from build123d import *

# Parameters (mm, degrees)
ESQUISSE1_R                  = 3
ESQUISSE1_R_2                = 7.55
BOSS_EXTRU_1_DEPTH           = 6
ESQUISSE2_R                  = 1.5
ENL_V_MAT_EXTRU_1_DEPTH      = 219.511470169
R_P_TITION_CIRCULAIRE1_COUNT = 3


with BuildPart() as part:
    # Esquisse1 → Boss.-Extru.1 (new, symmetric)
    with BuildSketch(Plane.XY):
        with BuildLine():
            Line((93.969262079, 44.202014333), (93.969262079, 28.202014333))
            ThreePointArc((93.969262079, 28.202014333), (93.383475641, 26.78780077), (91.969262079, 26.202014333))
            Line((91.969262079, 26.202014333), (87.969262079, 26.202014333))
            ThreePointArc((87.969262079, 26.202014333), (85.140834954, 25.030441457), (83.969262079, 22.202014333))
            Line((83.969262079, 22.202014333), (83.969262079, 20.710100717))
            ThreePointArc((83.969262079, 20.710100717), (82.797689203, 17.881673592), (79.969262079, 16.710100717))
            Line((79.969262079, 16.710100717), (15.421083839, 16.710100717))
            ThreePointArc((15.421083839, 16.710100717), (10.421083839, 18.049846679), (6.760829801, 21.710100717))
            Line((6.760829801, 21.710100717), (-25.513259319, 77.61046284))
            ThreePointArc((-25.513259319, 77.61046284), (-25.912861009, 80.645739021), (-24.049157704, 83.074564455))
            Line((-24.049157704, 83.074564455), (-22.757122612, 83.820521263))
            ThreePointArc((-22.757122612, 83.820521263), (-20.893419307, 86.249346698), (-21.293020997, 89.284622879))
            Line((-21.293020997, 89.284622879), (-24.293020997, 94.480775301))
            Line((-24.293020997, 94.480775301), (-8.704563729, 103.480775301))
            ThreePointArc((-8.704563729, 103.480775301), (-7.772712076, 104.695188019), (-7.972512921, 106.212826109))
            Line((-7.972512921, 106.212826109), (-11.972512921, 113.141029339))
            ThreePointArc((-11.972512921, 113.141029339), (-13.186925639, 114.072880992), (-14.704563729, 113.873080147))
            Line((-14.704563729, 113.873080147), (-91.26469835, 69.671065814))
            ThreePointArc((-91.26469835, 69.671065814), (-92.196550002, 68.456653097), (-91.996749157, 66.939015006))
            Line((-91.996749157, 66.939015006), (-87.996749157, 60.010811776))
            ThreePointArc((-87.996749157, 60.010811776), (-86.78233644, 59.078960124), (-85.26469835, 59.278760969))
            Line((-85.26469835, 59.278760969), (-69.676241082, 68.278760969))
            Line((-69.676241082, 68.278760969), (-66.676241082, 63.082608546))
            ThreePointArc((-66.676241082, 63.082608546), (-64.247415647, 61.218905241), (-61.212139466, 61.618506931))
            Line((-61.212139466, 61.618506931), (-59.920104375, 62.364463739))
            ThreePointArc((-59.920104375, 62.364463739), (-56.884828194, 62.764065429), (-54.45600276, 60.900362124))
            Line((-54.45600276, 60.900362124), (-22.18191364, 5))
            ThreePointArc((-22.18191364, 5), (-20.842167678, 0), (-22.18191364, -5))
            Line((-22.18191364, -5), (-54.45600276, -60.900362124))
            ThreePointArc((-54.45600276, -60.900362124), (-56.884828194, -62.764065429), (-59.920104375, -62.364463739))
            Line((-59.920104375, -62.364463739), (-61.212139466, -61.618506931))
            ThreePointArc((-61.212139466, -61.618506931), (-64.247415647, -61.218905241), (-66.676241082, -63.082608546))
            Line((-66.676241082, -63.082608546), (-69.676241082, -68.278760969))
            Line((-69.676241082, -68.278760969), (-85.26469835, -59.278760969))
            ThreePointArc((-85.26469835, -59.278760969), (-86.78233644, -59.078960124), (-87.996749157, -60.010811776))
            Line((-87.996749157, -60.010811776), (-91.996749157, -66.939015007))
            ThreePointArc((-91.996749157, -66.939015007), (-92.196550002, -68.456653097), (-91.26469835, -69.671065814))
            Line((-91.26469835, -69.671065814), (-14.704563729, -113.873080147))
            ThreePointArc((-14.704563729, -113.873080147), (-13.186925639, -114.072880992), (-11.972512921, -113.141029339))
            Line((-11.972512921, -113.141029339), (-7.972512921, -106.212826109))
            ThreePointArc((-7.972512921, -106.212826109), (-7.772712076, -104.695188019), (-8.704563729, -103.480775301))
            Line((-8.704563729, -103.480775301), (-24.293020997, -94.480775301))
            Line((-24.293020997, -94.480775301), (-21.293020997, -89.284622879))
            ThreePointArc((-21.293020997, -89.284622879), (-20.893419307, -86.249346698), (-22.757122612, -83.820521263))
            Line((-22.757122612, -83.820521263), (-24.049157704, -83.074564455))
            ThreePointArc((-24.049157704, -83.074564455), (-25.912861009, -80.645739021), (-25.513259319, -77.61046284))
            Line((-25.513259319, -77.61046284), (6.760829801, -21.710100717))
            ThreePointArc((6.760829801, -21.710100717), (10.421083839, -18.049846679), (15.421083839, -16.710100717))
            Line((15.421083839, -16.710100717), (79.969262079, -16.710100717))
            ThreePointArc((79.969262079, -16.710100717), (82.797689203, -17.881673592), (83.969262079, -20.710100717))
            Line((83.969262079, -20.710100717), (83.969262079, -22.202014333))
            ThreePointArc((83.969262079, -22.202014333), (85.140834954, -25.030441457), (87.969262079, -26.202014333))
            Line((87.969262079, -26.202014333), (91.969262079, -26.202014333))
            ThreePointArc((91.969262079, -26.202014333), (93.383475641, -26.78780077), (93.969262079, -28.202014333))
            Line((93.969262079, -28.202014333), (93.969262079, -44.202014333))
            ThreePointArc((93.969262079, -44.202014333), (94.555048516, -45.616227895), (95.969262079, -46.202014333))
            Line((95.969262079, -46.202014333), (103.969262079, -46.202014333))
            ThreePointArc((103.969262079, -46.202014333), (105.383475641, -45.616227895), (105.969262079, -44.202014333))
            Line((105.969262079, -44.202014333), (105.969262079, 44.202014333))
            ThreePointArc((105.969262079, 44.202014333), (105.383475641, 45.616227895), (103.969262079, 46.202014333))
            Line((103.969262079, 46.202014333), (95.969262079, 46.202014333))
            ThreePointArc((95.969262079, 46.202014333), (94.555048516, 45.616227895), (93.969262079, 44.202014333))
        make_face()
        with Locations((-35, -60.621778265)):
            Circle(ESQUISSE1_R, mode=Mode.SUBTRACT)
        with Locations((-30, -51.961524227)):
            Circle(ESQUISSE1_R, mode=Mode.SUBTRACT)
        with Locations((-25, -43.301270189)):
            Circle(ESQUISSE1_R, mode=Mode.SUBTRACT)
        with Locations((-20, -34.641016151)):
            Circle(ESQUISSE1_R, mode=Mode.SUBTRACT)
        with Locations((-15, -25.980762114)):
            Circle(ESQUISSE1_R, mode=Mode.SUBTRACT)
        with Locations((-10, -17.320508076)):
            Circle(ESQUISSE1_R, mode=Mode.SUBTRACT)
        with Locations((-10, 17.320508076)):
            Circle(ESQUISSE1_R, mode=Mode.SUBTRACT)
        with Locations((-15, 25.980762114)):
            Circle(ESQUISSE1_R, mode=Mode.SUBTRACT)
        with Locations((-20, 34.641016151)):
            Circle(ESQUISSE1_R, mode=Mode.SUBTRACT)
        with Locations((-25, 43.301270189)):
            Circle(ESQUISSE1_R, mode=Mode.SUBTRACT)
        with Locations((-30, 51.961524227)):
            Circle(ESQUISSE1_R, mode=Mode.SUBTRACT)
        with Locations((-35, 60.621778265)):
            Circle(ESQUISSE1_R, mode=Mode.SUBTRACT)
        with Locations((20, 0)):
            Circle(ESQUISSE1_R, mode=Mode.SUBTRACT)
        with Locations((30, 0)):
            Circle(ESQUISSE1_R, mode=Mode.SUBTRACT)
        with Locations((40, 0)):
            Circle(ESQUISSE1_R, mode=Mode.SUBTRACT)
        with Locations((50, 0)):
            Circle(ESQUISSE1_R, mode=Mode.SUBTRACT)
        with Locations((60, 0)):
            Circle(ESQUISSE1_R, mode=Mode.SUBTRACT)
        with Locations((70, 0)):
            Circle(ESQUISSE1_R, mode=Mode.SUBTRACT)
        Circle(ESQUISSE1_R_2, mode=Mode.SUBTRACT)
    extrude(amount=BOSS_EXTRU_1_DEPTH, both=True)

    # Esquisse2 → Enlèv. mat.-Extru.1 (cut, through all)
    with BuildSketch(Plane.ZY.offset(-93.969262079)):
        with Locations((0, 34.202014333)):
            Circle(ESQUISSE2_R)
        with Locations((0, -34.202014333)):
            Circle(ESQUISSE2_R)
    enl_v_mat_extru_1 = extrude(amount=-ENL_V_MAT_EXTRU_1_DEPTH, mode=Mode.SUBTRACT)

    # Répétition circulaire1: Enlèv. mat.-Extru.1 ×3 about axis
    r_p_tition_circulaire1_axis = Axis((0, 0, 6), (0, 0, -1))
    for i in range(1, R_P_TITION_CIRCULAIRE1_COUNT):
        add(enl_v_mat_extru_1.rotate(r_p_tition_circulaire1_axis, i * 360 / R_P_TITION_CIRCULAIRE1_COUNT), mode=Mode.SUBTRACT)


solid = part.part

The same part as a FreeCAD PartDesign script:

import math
import FreeCAD as App
import Part
import Sketcher

V = App.Vector
Q = App.Units.Quantity

doc = App.newDocument("Part")
body = doc.addObject("PartDesign::Body", "Body")

# Sketch on XY plane
sketch1 = doc.addObject("Sketcher::SketchObject", "Sketch")
body.addObject(sketch1)
sketch1.AttachmentSupport = (doc.XY_Plane, [""])
sketch1.MapMode = "FlatFace"
sketch1.addGeometry(Part.LineSegment(V(93.969262, 44.202014, 0), V(93.969262, 28.202014, 0)), False)
sketch1.addGeometry(Part.ArcOfCircle(Part.Circle(V(91.969262, 28.202014, 0), V(0, 0, 1), 2), math.radians(-90), math.radians(0)), False)
sketch1.addGeometry(Part.LineSegment(V(91.969262, 26.202014, 0), V(87.969262, 26.202014, 0)), False)
sketch1.addGeometry(Part.ArcOfCircle(Part.Circle(V(87.969262, 22.202014, 0), V(0, 0, 1), 4), math.radians(90), math.radians(180)), False)
sketch1.addGeometry(Part.LineSegment(V(83.969262, 22.202014, 0), V(83.969262, 20.710101, 0)), False)
sketch1.addGeometry(Part.ArcOfCircle(Part.Circle(V(79.969262, 20.710101, 0), V(0, 0, 1), 4), math.radians(-90), math.radians(0)), False)
sketch1.addGeometry(Part.LineSegment(V(79.969262, 16.710101, 0), V(15.421084, 16.710101, 0)), False)
sketch1.addGeometry(Part.ArcOfCircle(Part.Circle(V(15.421084, 26.710101, 0), V(0, 0, 1), 10), math.radians(-150), math.radians(-90)), False)
sketch1.addGeometry(Part.LineSegment(V(6.76083, 21.710101, 0), V(-25.513259, 77.610463, 0)), False)
sketch1.addGeometry(Part.ArcOfCircle(Part.Circle(V(-22.049158, 79.610463, 0), V(0, 0, 1), 4), math.radians(120), math.radians(210)), False)
sketch1.addGeometry(Part.LineSegment(V(-24.049158, 83.074564, 0), V(-22.757123, 83.820521, 0)), False)
sketch1.addGeometry(Part.ArcOfCircle(Part.Circle(V(-24.757123, 87.284623, 0), V(0, 0, 1), 4), math.radians(-60), math.radians(30)), False)
sketch1.addGeometry(Part.LineSegment(V(-21.293021, 89.284623, 0), V(-24.293021, 94.480775, 0)), False)
sketch1.addGeometry(Part.LineSegment(V(-24.293021, 94.480775, 0), V(-8.704564, 103.480775, 0)), False)
sketch1.addGeometry(Part.ArcOfCircle(Part.Circle(V(-9.704564, 105.212826, 0), V(0, 0, 1), 2), math.radians(-60), math.radians(30)), False)
sketch1.addGeometry(Part.LineSegment(V(-7.972513, 106.212826, 0), V(-11.972513, 113.141029, 0)), False)
sketch1.addGeometry(Part.ArcOfCircle(Part.Circle(V(-13.704564, 112.141029, 0), V(0, 0, 1), 2), math.radians(30), math.radians(120)), False)
sketch1.addGeometry(Part.LineSegment(V(-14.704564, 113.87308, 0), V(-91.264698, 69.671066, 0)), False)
sketch1.addGeometry(Part.ArcOfCircle(Part.Circle(V(-90.264698, 67.939015, 0), V(0, 0, 1), 2), math.radians(120), math.radians(210)), False)
sketch1.addGeometry(Part.LineSegment(V(-91.996749, 66.939015, 0), V(-87.996749, 60.010812, 0)), False)
sketch1.addGeometry(Part.ArcOfCircle(Part.Circle(V(-86.264698, 61.010812, 0), V(0, 0, 1), 2), math.radians(-150), math.radians(-60)), False)
sketch1.addGeometry(Part.LineSegment(V(-85.264698, 59.278761, 0), V(-69.676241, 68.278761, 0)), False)
sketch1.addGeometry(Part.LineSegment(V(-69.676241, 68.278761, 0), V(-66.676241, 63.082609, 0)), False)
sketch1.addGeometry(Part.ArcOfCircle(Part.Circle(V(-63.212139, 65.082609, 0), V(0, 0, 1), 4), math.radians(-150), math.radians(-60)), False)
sketch1.addGeometry(Part.LineSegment(V(-61.212139, 61.618507, 0), V(-59.920104, 62.364464, 0)), False)
sketch1.addGeometry(Part.ArcOfCircle(Part.Circle(V(-57.920104, 58.900362, 0), V(0, 0, 1), 4), math.radians(30), math.radians(120)), False)
sketch1.addGeometry(Part.LineSegment(V(-54.456003, 60.900362, 0), V(-22.181914, 5, 0)), False)
sketch1.addGeometry(Part.ArcOfCircle(Part.Circle(V(-30.842168, 0, 0), V(0, 0, 1), 10), math.radians(-30), math.radians(30)), False)
sketch1.addGeometry(Part.LineSegment(V(-22.181914, -5, 0), V(-54.456003, -60.900362, 0)), False)
sketch1.addGeometry(Part.ArcOfCircle(Part.Circle(V(-57.920104, -58.900362, 0), V(0, 0, 1), 4), math.radians(-120), math.radians(-30)), False)
sketch1.addGeometry(Part.LineSegment(V(-59.920104, -62.364464, 0), V(-61.212139, -61.618507, 0)), False)
sketch1.addGeometry(Part.ArcOfCircle(Part.Circle(V(-63.212139, -65.082609, 0), V(0, 0, 1), 4), math.radians(60), math.radians(150)), False)
sketch1.addGeometry(Part.LineSegment(V(-66.676241, -63.082609, 0), V(-69.676241, -68.278761, 0)), False)
sketch1.addGeometry(Part.LineSegment(V(-69.676241, -68.278761, 0), V(-85.264698, -59.278761, 0)), False)
sketch1.addGeometry(Part.ArcOfCircle(Part.Circle(V(-86.264698, -61.010812, 0), V(0, 0, 1), 2), math.radians(60), math.radians(150)), False)
sketch1.addGeometry(Part.LineSegment(V(-87.996749, -60.010812, 0), V(-91.996749, -66.939015, 0)), False)
sketch1.addGeometry(Part.ArcOfCircle(Part.Circle(V(-90.264698, -67.939015, 0), V(0, 0, 1), 2), math.radians(150), math.radians(240)), False)
sketch1.addGeometry(Part.LineSegment(V(-91.264698, -69.671066, 0), V(-14.704564, -113.87308, 0)), False)
sketch1.addGeometry(Part.ArcOfCircle(Part.Circle(V(-13.704564, -112.141029, 0), V(0, 0, 1), 2), math.radians(-120), math.radians(-30)), False)
sketch1.addGeometry(Part.LineSegment(V(-11.972513, -113.141029, 0), V(-7.972513, -106.212826, 0)), False)
sketch1.addGeometry(Part.ArcOfCircle(Part.Circle(V(-9.704564, -105.212826, 0), V(0, 0, 1), 2), math.radians(-30), math.radians(60)), False)
sketch1.addGeometry(Part.LineSegment(V(-8.704564, -103.480775, 0), V(-24.293021, -94.480775, 0)), False)
sketch1.addGeometry(Part.LineSegment(V(-24.293021, -94.480775, 0), V(-21.293021, -89.284623, 0)), False)
sketch1.addGeometry(Part.ArcOfCircle(Part.Circle(V(-24.757123, -87.284623, 0), V(0, 0, 1), 4), math.radians(-30), math.radians(60)), False)
sketch1.addGeometry(Part.LineSegment(V(-22.757123, -83.820521, 0), V(-24.049158, -83.074564, 0)), False)
sketch1.addGeometry(Part.ArcOfCircle(Part.Circle(V(-22.049158, -79.610463, 0), V(0, 0, 1), 4), math.radians(150), math.radians(240)), False)
sketch1.addGeometry(Part.LineSegment(V(-25.513259, -77.610463, 0), V(6.76083, -21.710101, 0)), False)
sketch1.addGeometry(Part.ArcOfCircle(Part.Circle(V(15.421084, -26.710101, 0), V(0, 0, 1), 10), math.radians(90), math.radians(150)), False)
sketch1.addGeometry(Part.LineSegment(V(15.421084, -16.710101, 0), V(79.969262, -16.710101, 0)), False)
sketch1.addGeometry(Part.ArcOfCircle(Part.Circle(V(79.969262, -20.710101, 0), V(0, 0, 1), 4), math.radians(0), math.radians(90)), False)
sketch1.addGeometry(Part.LineSegment(V(83.969262, -20.710101, 0), V(83.969262, -22.202014, 0)), False)
sketch1.addGeometry(Part.ArcOfCircle(Part.Circle(V(87.969262, -22.202014, 0), V(0, 0, 1), 4), math.radians(-180), math.radians(-90)), False)
sketch1.addGeometry(Part.LineSegment(V(87.969262, -26.202014, 0), V(91.969262, -26.202014, 0)), False)
sketch1.addGeometry(Part.ArcOfCircle(Part.Circle(V(91.969262, -28.202014, 0), V(0, 0, 1), 2), math.radians(0), math.radians(90)), False)
sketch1.addGeometry(Part.LineSegment(V(93.969262, -28.202014, 0), V(93.969262, -44.202014, 0)), False)
sketch1.addGeometry(Part.ArcOfCircle(Part.Circle(V(95.969262, -44.202014, 0), V(0, 0, 1), 2), math.radians(180), math.radians(270)), False)
sketch1.addGeometry(Part.LineSegment(V(95.969262, -46.202014, 0), V(103.969262, -46.202014, 0)), False)
sketch1.addGeometry(Part.ArcOfCircle(Part.Circle(V(103.969262, -44.202014, 0), V(0, 0, 1), 2), math.radians(-90), math.radians(0)), False)
sketch1.addGeometry(Part.LineSegment(V(105.969262, -44.202014, 0), V(105.969262, 44.202014, 0)), False)
sketch1.addGeometry(Part.ArcOfCircle(Part.Circle(V(103.969262, 44.202014, 0), V(0, 0, 1), 2), math.radians(0), math.radians(90)), False)
sketch1.addGeometry(Part.LineSegment(V(103.969262, 46.202014, 0), V(95.969262, 46.202014, 0)), False)
sketch1.addGeometry(Part.ArcOfCircle(Part.Circle(V(95.969262, 44.202014, 0), V(0, 0, 1), 2), math.radians(90), math.radians(180)), False)
sketch1.addGeometry(Part.Circle(V(-35, -60.621778, 0), V(0, 0, 1), 3), False)
sketch1.addGeometry(Part.Circle(V(-30, -51.961524, 0), V(0, 0, 1), 3), False)
sketch1.addGeometry(Part.Circle(V(-25, -43.30127, 0), V(0, 0, 1), 3), False)
sketch1.addGeometry(Part.Circle(V(-20, -34.641016, 0), V(0, 0, 1), 3), False)
sketch1.addGeometry(Part.Circle(V(-15, -25.980762, 0), V(0, 0, 1), 3), False)
sketch1.addGeometry(Part.Circle(V(-10, -17.320508, 0), V(0, 0, 1), 3), False)
sketch1.addGeometry(Part.Circle(V(0, 0, 0), V(0, 0, 1), 7.55), False)
sketch1.addGeometry(Part.Circle(V(20, 0, 0), V(0, 0, 1), 3), False)
sketch1.addGeometry(Part.Circle(V(30, 0, 0), V(0, 0, 1), 3), False)
sketch1.addGeometry(Part.Circle(V(40, 0, 0), V(0, 0, 1), 3), False)
sketch1.addGeometry(Part.Circle(V(50, 0, 0), V(0, 0, 1), 3), False)
sketch1.addGeometry(Part.Circle(V(60, 0, 0), V(0, 0, 1), 3), False)
sketch1.addGeometry(Part.Circle(V(70, 0, 0), V(0, 0, 1), 3), False)
sketch1.addGeometry(Part.Circle(V(-15, 25.980762, 0), V(0, 0, 1), 3), False)
sketch1.addGeometry(Part.Circle(V(-10, 17.320508, 0), V(0, 0, 1), 3), False)
sketch1.addGeometry(Part.Circle(V(-25, 43.30127, 0), V(0, 0, 1), 3), False)
sketch1.addGeometry(Part.Circle(V(-20, 34.641016, 0), V(0, 0, 1), 3), False)
sketch1.addGeometry(Part.Circle(V(-30, 51.961524, 0), V(0, 0, 1), 3), False)
sketch1.addGeometry(Part.Circle(V(-35, 60.621778, 0), V(0, 0, 1), 3), False)
sketch1.addConstraint(Sketcher.Constraint("Tangent", 0, 2, 1, 2))
sketch1.addConstraint(Sketcher.Constraint("Tangent", 1, 1, 2, 1))
sketch1.addConstraint(Sketcher.Constraint("Tangent", 2, 2, 3, 1))
sketch1.addConstraint(Sketcher.Constraint("Tangent", 3, 2, 4, 1))
sketch1.addConstraint(Sketcher.Constraint("Tangent", 4, 2, 5, 2))
sketch1.addConstraint(Sketcher.Constraint("Tangent", 5, 1, 6, 1))
sketch1.addConstraint(Sketcher.Constraint("Tangent", 6, 2, 7, 2))
sketch1.addConstraint(Sketcher.Constraint("Tangent", 7, 1, 8, 1))
sketch1.addConstraint(Sketcher.Constraint("Tangent", 8, 2, 9, 2))
sketch1.addConstraint(Sketcher.Constraint("Tangent", 9, 1, 10, 1))
sketch1.addConstraint(Sketcher.Constraint("Tangent", 10, 2, 11, 1))
sketch1.addConstraint(Sketcher.Constraint("Tangent", 11, 2, 12, 1))
sketch1.addConstraint(Sketcher.Constraint("Coincident", 12, 2, 13, 1))
sketch1.addConstraint(Sketcher.Constraint("Tangent", 13, 2, 14, 1))
sketch1.addConstraint(Sketcher.Constraint("Tangent", 14, 2, 15, 1))
sketch1.addConstraint(Sketcher.Constraint("Tangent", 15, 2, 16, 1))
sketch1.addConstraint(Sketcher.Constraint("Tangent", 16, 2, 17, 1))
sketch1.addConstraint(Sketcher.Constraint("Tangent", 17, 2, 18, 1))
sketch1.addConstraint(Sketcher.Constraint("Tangent", 18, 2, 19, 1))
sketch1.addConstraint(Sketcher.Constraint("Tangent", 19, 2, 20, 1))
sketch1.addConstraint(Sketcher.Constraint("Tangent", 20, 2, 21, 1))
sketch1.addConstraint(Sketcher.Constraint("Coincident", 21, 2, 22, 1))
sketch1.addConstraint(Sketcher.Constraint("Tangent", 22, 2, 23, 1))
sketch1.addConstraint(Sketcher.Constraint("Tangent", 23, 2, 24, 1))
sketch1.addConstraint(Sketcher.Constraint("Tangent", 24, 2, 25, 2))
sketch1.addConstraint(Sketcher.Constraint("Tangent", 25, 1, 26, 1))
sketch1.addConstraint(Sketcher.Constraint("Tangent", 26, 2, 27, 2))
sketch1.addConstraint(Sketcher.Constraint("Tangent", 27, 1, 28, 1))
sketch1.addConstraint(Sketcher.Constraint("Tangent", 28, 2, 29, 2))
sketch1.addConstraint(Sketcher.Constraint("Tangent", 29, 1, 30, 1))
sketch1.addConstraint(Sketcher.Constraint("Tangent", 30, 2, 31, 1))
sketch1.addConstraint(Sketcher.Constraint("Tangent", 31, 2, 32, 1))
sketch1.addConstraint(Sketcher.Constraint("Coincident", 32, 2, 33, 1))
sketch1.addConstraint(Sketcher.Constraint("Tangent", 33, 2, 34, 1))
sketch1.addConstraint(Sketcher.Constraint("Tangent", 34, 2, 35, 1))
sketch1.addConstraint(Sketcher.Constraint("Tangent", 35, 2, 36, 1))
sketch1.addConstraint(Sketcher.Constraint("Tangent", 36, 2, 37, 1))
sketch1.addConstraint(Sketcher.Constraint("Tangent", 37, 2, 38, 1))
sketch1.addConstraint(Sketcher.Constraint("Tangent", 38, 2, 39, 1))
sketch1.addConstraint(Sketcher.Constraint("Tangent", 39, 2, 40, 1))
sketch1.addConstraint(Sketcher.Constraint("Tangent", 40, 2, 41, 1))
sketch1.addConstraint(Sketcher.Constraint("Coincident", 41, 2, 42, 1))
sketch1.addConstraint(Sketcher.Constraint("Tangent", 42, 2, 43, 1))
sketch1.addConstraint(Sketcher.Constraint("Tangent", 43, 2, 44, 1))
sketch1.addConstraint(Sketcher.Constraint("Tangent", 44, 2, 45, 2))
sketch1.addConstraint(Sketcher.Constraint("Tangent", 45, 1, 46, 1))
sketch1.addConstraint(Sketcher.Constraint("Tangent", 46, 2, 47, 2))
sketch1.addConstraint(Sketcher.Constraint("Tangent", 47, 1, 48, 1))
sketch1.addConstraint(Sketcher.Constraint("Tangent", 48, 2, 49, 2))
sketch1.addConstraint(Sketcher.Constraint("Tangent", 49, 1, 50, 1))
sketch1.addConstraint(Sketcher.Constraint("Tangent", 50, 2, 51, 1))
sketch1.addConstraint(Sketcher.Constraint("Tangent", 51, 2, 52, 1))
sketch1.addConstraint(Sketcher.Constraint("Tangent", 52, 2, 53, 2))
sketch1.addConstraint(Sketcher.Constraint("Tangent", 53, 1, 54, 1))
sketch1.addConstraint(Sketcher.Constraint("Tangent", 54, 2, 55, 1))
sketch1.addConstraint(Sketcher.Constraint("Tangent", 55, 2, 56, 1))
sketch1.addConstraint(Sketcher.Constraint("Tangent", 56, 2, 57, 1))
sketch1.addConstraint(Sketcher.Constraint("Tangent", 57, 2, 58, 1))
sketch1.addConstraint(Sketcher.Constraint("Tangent", 58, 2, 59, 1))
sketch1.addConstraint(Sketcher.Constraint("Tangent", 59, 2, 60, 1))
sketch1.addConstraint(Sketcher.Constraint("Tangent", 60, 2, 61, 1))
sketch1.addConstraint(Sketcher.Constraint("Tangent", 61, 2, 0, 1))
sketch1.addConstraint(Sketcher.Constraint("Vertical", 0))
sketch1.addConstraint(Sketcher.Constraint("Horizontal", 2))
sketch1.addConstraint(Sketcher.Constraint("Vertical", 4))
sketch1.addConstraint(Sketcher.Constraint("Horizontal", 6))
sketch1.addConstraint(Sketcher.Constraint("Horizontal", 48))
sketch1.addConstraint(Sketcher.Constraint("Vertical", 50))
sketch1.addConstraint(Sketcher.Constraint("Horizontal", 52))
sketch1.addConstraint(Sketcher.Constraint("Vertical", 54))
sketch1.addConstraint(Sketcher.Constraint("Horizontal", 56))
sketch1.addConstraint(Sketcher.Constraint("Vertical", 58))
sketch1.addConstraint(Sketcher.Constraint("Horizontal", 60))
sketch1.addConstraint(Sketcher.Constraint("Coincident", 68, 3, -1, 1))
sketch1.addConstraint(Sketcher.Constraint("Equal", 3, 5))
sketch1.addConstraint(Sketcher.Constraint("Equal", 5, 9))
sketch1.addConstraint(Sketcher.Constraint("Equal", 9, 11))
sketch1.addConstraint(Sketcher.Constraint("Equal", 1, 14))
sketch1.addConstraint(Sketcher.Constraint("Equal", 14, 16))
sketch1.addConstraint(Sketcher.Constraint("Equal", 16, 18))
sketch1.addConstraint(Sketcher.Constraint("Equal", 18, 20))
sketch1.addConstraint(Sketcher.Constraint("Equal", 11, 23))
sketch1.addConstraint(Sketcher.Constraint("Equal", 23, 25))
sketch1.addConstraint(Sketcher.Constraint("Equal", 7, 27))
sketch1.addConstraint(Sketcher.Constraint("Equal", 25, 29))
sketch1.addConstraint(Sketcher.Constraint("Equal", 29, 31))
sketch1.addConstraint(Sketcher.Constraint("Equal", 20, 34))
sketch1.addConstraint(Sketcher.Constraint("Equal", 34, 36))
sketch1.addConstraint(Sketcher.Constraint("Equal", 36, 38))
sketch1.addConstraint(Sketcher.Constraint("Equal", 38, 40))
sketch1.addConstraint(Sketcher.Constraint("Equal", 31, 43))
sketch1.addConstraint(Sketcher.Constraint("Equal", 43, 45))
sketch1.addConstraint(Sketcher.Constraint("Equal", 27, 47))
sketch1.addConstraint(Sketcher.Constraint("Equal", 45, 49))
sketch1.addConstraint(Sketcher.Constraint("Equal", 49, 51))
sketch1.addConstraint(Sketcher.Constraint("Equal", 40, 53))
sketch1.addConstraint(Sketcher.Constraint("Equal", 53, 55))
sketch1.addConstraint(Sketcher.Constraint("Equal", 55, 57))
sketch1.addConstraint(Sketcher.Constraint("Equal", 57, 59))
sketch1.addConstraint(Sketcher.Constraint("Equal", 59, 61))
sketch1.addConstraint(Sketcher.Constraint("Equal", 62, 63))
sketch1.addConstraint(Sketcher.Constraint("Equal", 63, 64))
sketch1.addConstraint(Sketcher.Constraint("Equal", 64, 65))
sketch1.addConstraint(Sketcher.Constraint("Equal", 65, 66))
sketch1.addConstraint(Sketcher.Constraint("Equal", 66, 67))
sketch1.addConstraint(Sketcher.Constraint("Equal", 67, 69))
sketch1.addConstraint(Sketcher.Constraint("Equal", 69, 70))
sketch1.addConstraint(Sketcher.Constraint("Equal", 70, 71))
sketch1.addConstraint(Sketcher.Constraint("Equal", 71, 72))
sketch1.addConstraint(Sketcher.Constraint("Equal", 72, 73))
sketch1.addConstraint(Sketcher.Constraint("Equal", 73, 74))
sketch1.addConstraint(Sketcher.Constraint("Equal", 74, 75))
sketch1.addConstraint(Sketcher.Constraint("Equal", 75, 76))
sketch1.addConstraint(Sketcher.Constraint("Equal", 76, 77))
sketch1.addConstraint(Sketcher.Constraint("Equal", 77, 78))
sketch1.addConstraint(Sketcher.Constraint("Equal", 78, 79))
sketch1.addConstraint(Sketcher.Constraint("Equal", 79, 80))
sketch1.addConstraint(Sketcher.Constraint("Symmetric", 25, 3, 29, 3, -1))
sketch1.addConstraint(Sketcher.Constraint("Symmetric", 23, 3, 31, 3, -1))
sketch1.addConstraint(Sketcher.Constraint("Symmetric", 20, 3, 34, 3, -1))
sketch1.addConstraint(Sketcher.Constraint("Symmetric", 18, 3, 36, 3, -1))
sketch1.addConstraint(Sketcher.Constraint("Symmetric", 16, 3, 38, 3, -1))
sketch1.addConstraint(Sketcher.Constraint("Symmetric", 14, 3, 40, 3, -1))
sketch1.addConstraint(Sketcher.Constraint("Symmetric", 11, 3, 43, 3, -1))
sketch1.addConstraint(Sketcher.Constraint("Symmetric", 9, 3, 45, 3, -1))
sketch1.addConstraint(Sketcher.Constraint("Symmetric", 7, 3, 47, 3, -1))
sketch1.addConstraint(Sketcher.Constraint("Symmetric", 3, 3, 51, 3, -1))
sketch1.addConstraint(Sketcher.Constraint("Symmetric", 55, 3, 61, 3, -1))
sketch1.addConstraint(Sketcher.Constraint("Symmetric", 66, 3, 75, 3, -1))
sketch1.addConstraint(Sketcher.Constraint("Symmetric", 67, 3, 76, 3, -1))
sketch1.addConstraint(Sketcher.Constraint("Symmetric", 64, 3, 77, 3, -1))
sketch1.addConstraint(Sketcher.Constraint("Symmetric", 65, 3, 78, 3, -1))
sketch1.addConstraint(Sketcher.Constraint("Symmetric", 63, 3, 79, 3, -1))
sketch1.addConstraint(Sketcher.Constraint("Symmetric", 62, 3, 80, 3, -1))
sketch1.addConstraint(Sketcher.Constraint("Symmetric", 21, 2, 32, 2, -1))
sketch1.addConstraint(Sketcher.Constraint("Symmetric", 12, 2, 41, 2, -1))
sketch1.addConstraint(Sketcher.Constraint("PointOnObject", 27, 3, -1))
sketch1.addConstraint(Sketcher.Constraint("PointOnObject", 69, 3, -1))
sketch1.addConstraint(Sketcher.Constraint("PointOnObject", 70, 3, -1))
sketch1.addConstraint(Sketcher.Constraint("PointOnObject", 71, 3, -1))
sketch1.addConstraint(Sketcher.Constraint("PointOnObject", 72, 3, -1))
sketch1.addConstraint(Sketcher.Constraint("PointOnObject", 73, 3, -1))
sketch1.addConstraint(Sketcher.Constraint("PointOnObject", 74, 3, -1))
sketch1.addConstraint(Sketcher.Constraint("Perpendicular", 8, 10))
sketch1.addConstraint(Sketcher.Constraint("Perpendicular", 10, 12))
sketch1.addConstraint(Sketcher.Constraint("Perpendicular", 12, 13))
sketch1.addConstraint(Sketcher.Constraint("Perpendicular", 13, 15))
sketch1.addConstraint(Sketcher.Constraint("Perpendicular", 15, 17))
sketch1.addConstraint(Sketcher.Constraint("Perpendicular", 17, 19))
sketch1.addConstraint(Sketcher.Constraint("Perpendicular", 19, 21))
sketch1.addConstraint(Sketcher.Constraint("Perpendicular", 21, 22))
sketch1.addConstraint(Sketcher.Constraint("Perpendicular", 22, 24))
sketch1.addConstraint(Sketcher.Constraint("Perpendicular", 24, 26))
sketch1.addConstraint(Sketcher.Constraint("Equal", 15, 19))
sketch1.addConstraint(Sketcher.Constraint("Equal", 13, 21))
sketch1.addConstraint(Sketcher.Constraint("Equal", 12, 22))
sketch1.addConstraint(Sketcher.Constraint("Equal", 10, 24))
sketch1.addConstraint(Sketcher.Constraint("Equal", 8, 26))
sketch1.addConstraint(Sketcher.Constraint("Diameter", 62, Q("6 mm")))
sketch1.addConstraint(Sketcher.Constraint("Radius", 1, Q("2 mm")))
sketch1.addConstraint(Sketcher.Constraint("Radius", 3, Q("4 mm")))
sketch1.addConstraint(Sketcher.Constraint("Radius", 7, Q("10 mm")))
sketch1.addConstraint(Sketcher.Constraint("Diameter", 68, Q("15.1 mm")))
sketch1.addConstraint(Sketcher.Constraint("DistanceX", 2, 2, 2, 1, Q("4 mm")))
sketch1.addConstraint(Sketcher.Constraint("DistanceX", 56, 1, 56, 2, Q("8 mm")))
sketch1.addConstraint(Sketcher.Constraint("DistanceY", 0, 2, 0, 1, Q("16 mm")))
sketch1.addConstraint(Sketcher.Constraint("Angle", 8, Q("120 deg")))
sketch1.addConstraint(Sketcher.Constraint("Distance", 12, Q("6 mm")))
sketch1.addConstraint(Sketcher.Constraint("Distance", 13, Q("18 mm")))
sketch1.addConstraint(Sketcher.Constraint("Distance", 15, Q("8 mm")))
sketch1.addConstraint(Sketcher.Constraint("DistanceX", 62, 3, -1, 1, Q("35 mm")))
sketch1.addConstraint(Sketcher.Constraint("DistanceX", 63, 3, -1, 1, Q("30 mm")))
sketch1.addConstraint(Sketcher.Constraint("DistanceX", 64, 3, -1, 1, Q("25 mm")))
sketch1.addConstraint(Sketcher.Constraint("DistanceX", 65, 3, -1, 1, Q("20 mm")))
sketch1.addConstraint(Sketcher.Constraint("DistanceX", 66, 3, -1, 1, Q("15 mm")))
sketch1.addConstraint(Sketcher.Constraint("DistanceX", 67, 3, -1, 1, Q("10 mm")))
sketch1.addConstraint(Sketcher.Constraint("DistanceX", -1, 1, 69, 3, Q("20 mm")))
sketch1.addConstraint(Sketcher.Constraint("DistanceX", -1, 1, 70, 3, Q("30 mm")))
sketch1.addConstraint(Sketcher.Constraint("DistanceX", -1, 1, 71, 3, Q("40 mm")))
sketch1.addConstraint(Sketcher.Constraint("DistanceX", -1, 1, 72, 3, Q("50 mm")))
sketch1.addConstraint(Sketcher.Constraint("DistanceX", -1, 1, 73, 3, Q("60 mm")))
sketch1.addConstraint(Sketcher.Constraint("DistanceX", -1, 1, 74, 3, Q("70 mm")))
sketch1.addConstraint(Sketcher.Constraint("DistanceX", 6, 2, 6, 1, Q("64.548178 mm")))
sketch1.addConstraint(Sketcher.Constraint("DistanceY", 58, 1, 58, 2, Q("88.404029 mm")))
sketch1.addConstraint(Sketcher.Constraint("DistanceY", -1, 1, 5, 3, Q("20.710101 mm")))
sketch1.addConstraint(Sketcher.Constraint("DistanceX", 18, 3, -1, 1, Q("90.264698 mm")))
sketch1.addConstraint(Sketcher.Constraint("Distance", 8, Q("64.548178 mm")))
sketch1.addConstraint(Sketcher.Constraint("Distance", 17, Q("88.404029 mm")))
sketch1.addConstraint(Sketcher.Constraint("DistanceY", 62, 3, -1, 1, Q("60.621778 mm")))
sketch1.addConstraint(Sketcher.Constraint("DistanceY", 64, 3, -1, 1, Q("43.30127 mm")))
sketch1.addConstraint(Sketcher.Constraint("DistanceY", 67, 3, -1, 1, Q("17.320508 mm")))
sketch1.addConstraint(Sketcher.Constraint("DistanceY", 63, 3, -1, 1, Q("51.961524 mm")))
sketch1.addConstraint(Sketcher.Constraint("DistanceY", 65, 3, -1, 1, Q("34.641016 mm")))
sketch1.addConstraint(Sketcher.Constraint("DistanceY", 66, 3, -1, 1, Q("25.980762 mm")))
pad1 = doc.addObject("PartDesign::Pad", "Pad")
body.addObject(pad1)
pad1.Profile = sketch1
pad1.Length = 12
pad1.Midplane = True

# Sketch on YZ plane
sketch2 = doc.addObject("Sketcher::SketchObject", "Sketch001")
body.addObject(sketch2)
sketch2.AttachmentSupport = (doc.YZ_Plane, [""])
sketch2.MapMode = "FlatFace"
sketch2.AttachmentOffset = App.Placement(V(0, 0, 93.969262), App.Rotation())
sketch2.addGeometry(Part.Circle(V(34.202014, 0, 0), V(0, 0, 1), 1.5), False)
sketch2.addGeometry(Part.Circle(V(-34.202014, 0, 0), V(0, 0, 1), 1.5), False)
sketch2.addConstraint(Sketcher.Constraint("Equal", 0, 1))
sketch2.addConstraint(Sketcher.Constraint("Symmetric", 0, 3, 1, 3, -1, 1))
sketch2.addConstraint(Sketcher.Constraint("PointOnObject", 0, 3, -1))
sketch2.addConstraint(Sketcher.Constraint("Diameter", 0, Q("3 mm")))
sketch2.addConstraint(Sketcher.Constraint("DistanceX", 1, 3, 0, 3, Q("68.404029 mm")))
pocket1 = doc.addObject("PartDesign::Pocket", "Pocket")
body.addObject(pocket1)
pocket1.Profile = sketch2
pocket1.Type = "ThroughAll"
pocket1.Reversed = True
doc.recompute()

polarpattern = doc.addObject("PartDesign::PolarPattern", "PolarPattern")
body.addObject(polarpattern)
polarpattern.Originals = [pocket1]
polarpattern.Axis = (doc.Z_Axis, [""])
polarpattern.Angle = 360
polarpattern.Occurrences = 3
body.Tip = polarpattern

doc.recompute()
